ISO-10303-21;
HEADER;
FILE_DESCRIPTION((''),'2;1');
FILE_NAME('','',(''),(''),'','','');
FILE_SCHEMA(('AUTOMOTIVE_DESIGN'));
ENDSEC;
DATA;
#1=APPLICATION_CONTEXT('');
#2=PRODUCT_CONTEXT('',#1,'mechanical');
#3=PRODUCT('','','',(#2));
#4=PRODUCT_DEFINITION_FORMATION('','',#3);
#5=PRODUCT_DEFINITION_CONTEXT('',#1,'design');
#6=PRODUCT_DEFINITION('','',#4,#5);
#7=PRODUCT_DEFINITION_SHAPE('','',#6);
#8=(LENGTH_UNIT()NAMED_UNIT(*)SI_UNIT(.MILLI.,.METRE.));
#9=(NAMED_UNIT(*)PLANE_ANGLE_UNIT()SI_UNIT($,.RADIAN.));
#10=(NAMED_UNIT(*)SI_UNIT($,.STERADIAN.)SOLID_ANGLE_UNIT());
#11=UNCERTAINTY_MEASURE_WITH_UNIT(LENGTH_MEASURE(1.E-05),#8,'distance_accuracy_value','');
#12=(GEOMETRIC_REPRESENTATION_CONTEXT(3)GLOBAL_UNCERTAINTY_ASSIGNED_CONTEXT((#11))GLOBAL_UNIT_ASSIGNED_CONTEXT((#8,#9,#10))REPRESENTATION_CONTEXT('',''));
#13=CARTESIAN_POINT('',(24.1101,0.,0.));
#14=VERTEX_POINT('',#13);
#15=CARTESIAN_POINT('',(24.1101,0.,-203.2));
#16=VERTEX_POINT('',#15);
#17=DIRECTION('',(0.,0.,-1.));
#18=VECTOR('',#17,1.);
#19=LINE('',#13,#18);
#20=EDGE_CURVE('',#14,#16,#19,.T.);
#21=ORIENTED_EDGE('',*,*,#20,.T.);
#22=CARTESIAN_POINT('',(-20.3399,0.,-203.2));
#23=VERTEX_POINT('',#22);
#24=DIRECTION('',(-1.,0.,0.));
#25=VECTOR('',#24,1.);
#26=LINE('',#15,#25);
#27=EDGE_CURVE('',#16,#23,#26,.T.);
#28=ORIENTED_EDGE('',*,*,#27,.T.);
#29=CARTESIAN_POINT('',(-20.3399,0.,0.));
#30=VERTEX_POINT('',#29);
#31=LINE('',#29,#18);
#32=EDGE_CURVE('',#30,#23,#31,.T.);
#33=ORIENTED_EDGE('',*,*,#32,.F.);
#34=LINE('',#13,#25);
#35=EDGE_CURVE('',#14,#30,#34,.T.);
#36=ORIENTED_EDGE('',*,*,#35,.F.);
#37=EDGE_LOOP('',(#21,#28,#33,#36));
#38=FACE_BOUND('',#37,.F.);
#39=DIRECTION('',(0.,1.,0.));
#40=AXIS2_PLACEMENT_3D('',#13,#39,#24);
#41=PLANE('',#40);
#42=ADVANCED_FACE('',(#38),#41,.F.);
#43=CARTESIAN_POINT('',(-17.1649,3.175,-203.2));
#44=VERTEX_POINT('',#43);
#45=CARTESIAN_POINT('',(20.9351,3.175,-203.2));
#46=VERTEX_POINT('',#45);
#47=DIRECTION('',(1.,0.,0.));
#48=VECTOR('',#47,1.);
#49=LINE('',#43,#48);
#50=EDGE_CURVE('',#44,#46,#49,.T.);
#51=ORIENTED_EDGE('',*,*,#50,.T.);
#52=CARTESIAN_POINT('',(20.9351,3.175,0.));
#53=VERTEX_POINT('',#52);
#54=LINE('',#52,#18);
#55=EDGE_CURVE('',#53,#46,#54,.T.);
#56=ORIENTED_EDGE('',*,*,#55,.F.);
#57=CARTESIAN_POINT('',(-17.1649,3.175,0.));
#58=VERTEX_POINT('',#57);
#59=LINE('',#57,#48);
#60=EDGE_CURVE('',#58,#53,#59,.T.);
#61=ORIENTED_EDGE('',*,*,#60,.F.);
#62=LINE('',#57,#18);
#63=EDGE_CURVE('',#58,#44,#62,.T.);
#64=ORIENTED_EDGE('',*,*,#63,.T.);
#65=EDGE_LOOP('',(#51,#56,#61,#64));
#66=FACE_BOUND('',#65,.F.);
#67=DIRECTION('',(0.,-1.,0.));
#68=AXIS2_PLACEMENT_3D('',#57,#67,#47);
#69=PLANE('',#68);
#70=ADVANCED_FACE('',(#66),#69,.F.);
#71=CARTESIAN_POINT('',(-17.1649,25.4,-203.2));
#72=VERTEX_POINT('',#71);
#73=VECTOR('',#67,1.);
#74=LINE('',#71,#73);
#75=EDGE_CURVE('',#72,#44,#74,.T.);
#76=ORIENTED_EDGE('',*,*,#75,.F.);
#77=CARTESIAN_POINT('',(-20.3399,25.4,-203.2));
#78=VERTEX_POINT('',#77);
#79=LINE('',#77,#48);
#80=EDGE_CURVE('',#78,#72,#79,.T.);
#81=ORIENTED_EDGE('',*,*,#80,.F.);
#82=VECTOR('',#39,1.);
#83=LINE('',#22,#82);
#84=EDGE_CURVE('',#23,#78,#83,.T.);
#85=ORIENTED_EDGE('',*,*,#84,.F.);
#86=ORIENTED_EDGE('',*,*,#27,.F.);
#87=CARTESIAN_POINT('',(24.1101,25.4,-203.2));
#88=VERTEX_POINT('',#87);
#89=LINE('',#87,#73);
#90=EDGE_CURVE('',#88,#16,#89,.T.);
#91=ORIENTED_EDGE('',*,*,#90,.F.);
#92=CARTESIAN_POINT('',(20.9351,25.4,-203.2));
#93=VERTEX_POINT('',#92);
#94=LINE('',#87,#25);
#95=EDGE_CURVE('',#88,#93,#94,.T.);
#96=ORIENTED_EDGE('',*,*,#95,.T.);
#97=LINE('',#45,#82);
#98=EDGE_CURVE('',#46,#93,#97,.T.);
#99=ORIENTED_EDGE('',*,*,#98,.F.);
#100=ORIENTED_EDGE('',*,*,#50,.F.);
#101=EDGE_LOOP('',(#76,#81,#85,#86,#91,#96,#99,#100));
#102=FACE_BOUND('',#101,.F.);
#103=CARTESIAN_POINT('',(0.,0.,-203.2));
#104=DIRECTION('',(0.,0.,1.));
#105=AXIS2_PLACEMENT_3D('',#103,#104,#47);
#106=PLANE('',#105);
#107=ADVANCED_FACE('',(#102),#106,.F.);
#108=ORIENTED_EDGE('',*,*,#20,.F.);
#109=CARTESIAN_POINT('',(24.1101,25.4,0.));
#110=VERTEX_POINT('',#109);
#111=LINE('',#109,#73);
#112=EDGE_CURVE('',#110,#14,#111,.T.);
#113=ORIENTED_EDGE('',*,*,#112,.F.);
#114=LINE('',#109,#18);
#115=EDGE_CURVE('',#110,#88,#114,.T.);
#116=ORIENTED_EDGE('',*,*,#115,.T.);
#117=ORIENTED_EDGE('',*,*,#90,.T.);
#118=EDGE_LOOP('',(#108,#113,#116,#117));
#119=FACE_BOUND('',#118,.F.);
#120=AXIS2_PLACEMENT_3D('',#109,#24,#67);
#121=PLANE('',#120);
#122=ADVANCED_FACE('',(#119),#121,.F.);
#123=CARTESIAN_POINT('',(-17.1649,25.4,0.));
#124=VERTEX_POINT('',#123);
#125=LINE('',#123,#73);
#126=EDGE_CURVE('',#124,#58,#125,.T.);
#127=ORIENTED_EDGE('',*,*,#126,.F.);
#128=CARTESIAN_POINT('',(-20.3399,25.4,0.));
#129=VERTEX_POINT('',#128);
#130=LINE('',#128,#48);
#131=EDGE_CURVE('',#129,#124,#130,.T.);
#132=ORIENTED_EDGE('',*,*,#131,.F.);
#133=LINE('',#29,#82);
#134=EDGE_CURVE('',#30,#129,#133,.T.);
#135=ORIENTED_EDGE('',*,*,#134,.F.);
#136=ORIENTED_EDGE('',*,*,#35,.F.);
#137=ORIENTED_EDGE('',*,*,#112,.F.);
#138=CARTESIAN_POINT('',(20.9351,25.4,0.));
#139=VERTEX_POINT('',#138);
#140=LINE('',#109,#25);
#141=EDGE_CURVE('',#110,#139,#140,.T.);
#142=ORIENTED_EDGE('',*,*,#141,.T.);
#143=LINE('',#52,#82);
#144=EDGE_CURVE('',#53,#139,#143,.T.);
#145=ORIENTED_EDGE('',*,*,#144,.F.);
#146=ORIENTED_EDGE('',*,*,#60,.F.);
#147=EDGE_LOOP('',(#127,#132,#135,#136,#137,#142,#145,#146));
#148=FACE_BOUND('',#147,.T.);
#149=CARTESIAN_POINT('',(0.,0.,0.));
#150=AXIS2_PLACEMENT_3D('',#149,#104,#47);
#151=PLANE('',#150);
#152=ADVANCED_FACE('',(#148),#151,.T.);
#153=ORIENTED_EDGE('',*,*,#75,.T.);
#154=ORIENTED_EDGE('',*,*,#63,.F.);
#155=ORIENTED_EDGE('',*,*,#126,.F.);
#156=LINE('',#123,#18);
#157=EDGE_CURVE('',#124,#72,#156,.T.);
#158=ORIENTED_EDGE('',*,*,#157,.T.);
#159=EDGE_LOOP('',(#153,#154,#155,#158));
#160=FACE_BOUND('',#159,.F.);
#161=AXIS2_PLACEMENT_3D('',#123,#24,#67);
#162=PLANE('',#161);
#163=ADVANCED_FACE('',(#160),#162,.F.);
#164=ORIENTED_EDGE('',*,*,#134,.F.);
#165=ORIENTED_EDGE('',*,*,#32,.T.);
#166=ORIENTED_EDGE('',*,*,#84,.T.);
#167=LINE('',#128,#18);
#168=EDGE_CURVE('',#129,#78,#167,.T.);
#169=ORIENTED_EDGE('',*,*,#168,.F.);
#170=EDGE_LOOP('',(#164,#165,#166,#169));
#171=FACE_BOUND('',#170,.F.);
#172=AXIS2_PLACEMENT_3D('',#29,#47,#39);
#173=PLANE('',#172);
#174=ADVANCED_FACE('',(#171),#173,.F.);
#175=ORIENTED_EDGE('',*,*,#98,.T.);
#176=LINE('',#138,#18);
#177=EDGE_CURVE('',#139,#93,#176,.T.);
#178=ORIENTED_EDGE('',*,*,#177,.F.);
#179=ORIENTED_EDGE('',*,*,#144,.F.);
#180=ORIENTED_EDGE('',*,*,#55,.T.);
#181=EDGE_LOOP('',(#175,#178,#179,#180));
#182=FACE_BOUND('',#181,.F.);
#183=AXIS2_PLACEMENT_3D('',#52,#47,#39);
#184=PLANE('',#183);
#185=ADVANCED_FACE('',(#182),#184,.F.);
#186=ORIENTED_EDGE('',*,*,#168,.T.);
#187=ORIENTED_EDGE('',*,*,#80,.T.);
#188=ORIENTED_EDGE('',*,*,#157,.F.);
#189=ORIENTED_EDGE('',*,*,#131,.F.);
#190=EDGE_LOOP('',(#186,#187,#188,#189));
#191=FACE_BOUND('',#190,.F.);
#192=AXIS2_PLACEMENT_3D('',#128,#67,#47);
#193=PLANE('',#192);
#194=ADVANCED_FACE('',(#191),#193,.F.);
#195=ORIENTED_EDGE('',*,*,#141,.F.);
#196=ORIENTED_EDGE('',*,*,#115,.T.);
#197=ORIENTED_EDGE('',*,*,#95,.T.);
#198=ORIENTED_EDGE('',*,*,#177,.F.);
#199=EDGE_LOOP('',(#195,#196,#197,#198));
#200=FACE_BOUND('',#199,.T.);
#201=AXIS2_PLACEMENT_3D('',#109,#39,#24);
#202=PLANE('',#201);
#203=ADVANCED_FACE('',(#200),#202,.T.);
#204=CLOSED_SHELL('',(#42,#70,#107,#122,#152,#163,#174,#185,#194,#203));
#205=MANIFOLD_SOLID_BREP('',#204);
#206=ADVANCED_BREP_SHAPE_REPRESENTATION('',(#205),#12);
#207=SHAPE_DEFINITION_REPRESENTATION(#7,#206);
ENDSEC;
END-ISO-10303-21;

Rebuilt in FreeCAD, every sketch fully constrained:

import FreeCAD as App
import Part
import Sketcher
Q = App.Units.Quantity


def add_polygon(sketch, points):
    """Adds a closed chain of lines whose ends are joined by coincident constraints."""
    first, n = sketch.GeometryCount, len(points)
    for a, b in zip(points, points[1:] + points[:1]):
        sketch.addGeometry(Part.LineSegment(App.Vector(*a, 0), App.Vector(*b, 0)), False)
    for i in range(n):
        sketch.addConstraint(Sketcher.Constraint("Coincident", first + i, 2, first + (i + 1) % n, 1))

doc = App.newDocument("Part")
params = doc.addObject("Spreadsheet::Sheet", "Params")
for row, (alias, value) in enumerate([
    ("sketch1_height", "1 in"),
    ("sketch1_width", "1.75 in"),
    ("sketch1_width2", "0.125 in"),
    ("pad1_length", "8 in"),
], start=1):
    params.set(f"A{row}", alias)
    params.set(f"B{row}", "=" + value)
    params.setAlias(f"B{row}", alias)

body = doc.addObject("PartDesign::Body", "Body")

sketch1 = body.newObject("Sketcher::SketchObject", "Sketch")
sketch1.AttachmentSupport = (doc.getObject("XY_Plane"), [""])
sketch1.MapMode = "FlatFace"
add_polygon(sketch1, [(24.1, 0), (24.1, 25.4), (20.9, 25.4), (20.9, 3.2), (-17.2, 3.2), (-17.2, 25.4), (-20.3, 25.4), (-20.3, 0)])
sketch1.addConstraint([
    Sketcher.Constraint("Vertical", 0),
    Sketcher.Constraint("Horizontal", 1),
    Sketcher.Constraint("Vertical", 2),
    Sketcher.Constraint("Horizontal", 3),
    Sketcher.Constraint("Vertical", 4),
    Sketcher.Constraint("Horizontal", 5),
    Sketcher.Constraint("Vertical", 6),
    Sketcher.Constraint("Horizontal", 7),
    Sketcher.Constraint("PointOnObject", 6, 2, -1),
    Sketcher.Constraint("Horizontal", 1, 2, 4, 2),
    Sketcher.Constraint("Equal", 1, 5),
    Sketcher.Constraint("DistanceY", 0, 1, 0, 2, Q("1 in")),
    Sketcher.Constraint("DistanceX", 7, 1, 7, 2, Q("1.75 in")),
    Sketcher.Constraint("DistanceX", 1, 2, 1, 1, Q("0.125 in")),
    Sketcher.Constraint("DistanceY", -1, 1, 2, 2, Q("0.125 in")),
    Sketcher.Constraint("DistanceX", -1, 1, 0, 2, Q("24.11 mm")),
])
sketch1.setExpression("Constraints[19]", "Params.sketch1_height")
sketch1.setExpression("Constraints[20]", "Params.sketch1_width")
sketch1.setExpression("Constraints[21]", "Params.sketch1_width2")
pad1 = body.newObject("PartDesign::Pad", "Pad")
pad1.Profile = sketch1
pad1.setExpression("Length", "Params.pad1_length")
pad1.Reversed = True

doc.recompute()
